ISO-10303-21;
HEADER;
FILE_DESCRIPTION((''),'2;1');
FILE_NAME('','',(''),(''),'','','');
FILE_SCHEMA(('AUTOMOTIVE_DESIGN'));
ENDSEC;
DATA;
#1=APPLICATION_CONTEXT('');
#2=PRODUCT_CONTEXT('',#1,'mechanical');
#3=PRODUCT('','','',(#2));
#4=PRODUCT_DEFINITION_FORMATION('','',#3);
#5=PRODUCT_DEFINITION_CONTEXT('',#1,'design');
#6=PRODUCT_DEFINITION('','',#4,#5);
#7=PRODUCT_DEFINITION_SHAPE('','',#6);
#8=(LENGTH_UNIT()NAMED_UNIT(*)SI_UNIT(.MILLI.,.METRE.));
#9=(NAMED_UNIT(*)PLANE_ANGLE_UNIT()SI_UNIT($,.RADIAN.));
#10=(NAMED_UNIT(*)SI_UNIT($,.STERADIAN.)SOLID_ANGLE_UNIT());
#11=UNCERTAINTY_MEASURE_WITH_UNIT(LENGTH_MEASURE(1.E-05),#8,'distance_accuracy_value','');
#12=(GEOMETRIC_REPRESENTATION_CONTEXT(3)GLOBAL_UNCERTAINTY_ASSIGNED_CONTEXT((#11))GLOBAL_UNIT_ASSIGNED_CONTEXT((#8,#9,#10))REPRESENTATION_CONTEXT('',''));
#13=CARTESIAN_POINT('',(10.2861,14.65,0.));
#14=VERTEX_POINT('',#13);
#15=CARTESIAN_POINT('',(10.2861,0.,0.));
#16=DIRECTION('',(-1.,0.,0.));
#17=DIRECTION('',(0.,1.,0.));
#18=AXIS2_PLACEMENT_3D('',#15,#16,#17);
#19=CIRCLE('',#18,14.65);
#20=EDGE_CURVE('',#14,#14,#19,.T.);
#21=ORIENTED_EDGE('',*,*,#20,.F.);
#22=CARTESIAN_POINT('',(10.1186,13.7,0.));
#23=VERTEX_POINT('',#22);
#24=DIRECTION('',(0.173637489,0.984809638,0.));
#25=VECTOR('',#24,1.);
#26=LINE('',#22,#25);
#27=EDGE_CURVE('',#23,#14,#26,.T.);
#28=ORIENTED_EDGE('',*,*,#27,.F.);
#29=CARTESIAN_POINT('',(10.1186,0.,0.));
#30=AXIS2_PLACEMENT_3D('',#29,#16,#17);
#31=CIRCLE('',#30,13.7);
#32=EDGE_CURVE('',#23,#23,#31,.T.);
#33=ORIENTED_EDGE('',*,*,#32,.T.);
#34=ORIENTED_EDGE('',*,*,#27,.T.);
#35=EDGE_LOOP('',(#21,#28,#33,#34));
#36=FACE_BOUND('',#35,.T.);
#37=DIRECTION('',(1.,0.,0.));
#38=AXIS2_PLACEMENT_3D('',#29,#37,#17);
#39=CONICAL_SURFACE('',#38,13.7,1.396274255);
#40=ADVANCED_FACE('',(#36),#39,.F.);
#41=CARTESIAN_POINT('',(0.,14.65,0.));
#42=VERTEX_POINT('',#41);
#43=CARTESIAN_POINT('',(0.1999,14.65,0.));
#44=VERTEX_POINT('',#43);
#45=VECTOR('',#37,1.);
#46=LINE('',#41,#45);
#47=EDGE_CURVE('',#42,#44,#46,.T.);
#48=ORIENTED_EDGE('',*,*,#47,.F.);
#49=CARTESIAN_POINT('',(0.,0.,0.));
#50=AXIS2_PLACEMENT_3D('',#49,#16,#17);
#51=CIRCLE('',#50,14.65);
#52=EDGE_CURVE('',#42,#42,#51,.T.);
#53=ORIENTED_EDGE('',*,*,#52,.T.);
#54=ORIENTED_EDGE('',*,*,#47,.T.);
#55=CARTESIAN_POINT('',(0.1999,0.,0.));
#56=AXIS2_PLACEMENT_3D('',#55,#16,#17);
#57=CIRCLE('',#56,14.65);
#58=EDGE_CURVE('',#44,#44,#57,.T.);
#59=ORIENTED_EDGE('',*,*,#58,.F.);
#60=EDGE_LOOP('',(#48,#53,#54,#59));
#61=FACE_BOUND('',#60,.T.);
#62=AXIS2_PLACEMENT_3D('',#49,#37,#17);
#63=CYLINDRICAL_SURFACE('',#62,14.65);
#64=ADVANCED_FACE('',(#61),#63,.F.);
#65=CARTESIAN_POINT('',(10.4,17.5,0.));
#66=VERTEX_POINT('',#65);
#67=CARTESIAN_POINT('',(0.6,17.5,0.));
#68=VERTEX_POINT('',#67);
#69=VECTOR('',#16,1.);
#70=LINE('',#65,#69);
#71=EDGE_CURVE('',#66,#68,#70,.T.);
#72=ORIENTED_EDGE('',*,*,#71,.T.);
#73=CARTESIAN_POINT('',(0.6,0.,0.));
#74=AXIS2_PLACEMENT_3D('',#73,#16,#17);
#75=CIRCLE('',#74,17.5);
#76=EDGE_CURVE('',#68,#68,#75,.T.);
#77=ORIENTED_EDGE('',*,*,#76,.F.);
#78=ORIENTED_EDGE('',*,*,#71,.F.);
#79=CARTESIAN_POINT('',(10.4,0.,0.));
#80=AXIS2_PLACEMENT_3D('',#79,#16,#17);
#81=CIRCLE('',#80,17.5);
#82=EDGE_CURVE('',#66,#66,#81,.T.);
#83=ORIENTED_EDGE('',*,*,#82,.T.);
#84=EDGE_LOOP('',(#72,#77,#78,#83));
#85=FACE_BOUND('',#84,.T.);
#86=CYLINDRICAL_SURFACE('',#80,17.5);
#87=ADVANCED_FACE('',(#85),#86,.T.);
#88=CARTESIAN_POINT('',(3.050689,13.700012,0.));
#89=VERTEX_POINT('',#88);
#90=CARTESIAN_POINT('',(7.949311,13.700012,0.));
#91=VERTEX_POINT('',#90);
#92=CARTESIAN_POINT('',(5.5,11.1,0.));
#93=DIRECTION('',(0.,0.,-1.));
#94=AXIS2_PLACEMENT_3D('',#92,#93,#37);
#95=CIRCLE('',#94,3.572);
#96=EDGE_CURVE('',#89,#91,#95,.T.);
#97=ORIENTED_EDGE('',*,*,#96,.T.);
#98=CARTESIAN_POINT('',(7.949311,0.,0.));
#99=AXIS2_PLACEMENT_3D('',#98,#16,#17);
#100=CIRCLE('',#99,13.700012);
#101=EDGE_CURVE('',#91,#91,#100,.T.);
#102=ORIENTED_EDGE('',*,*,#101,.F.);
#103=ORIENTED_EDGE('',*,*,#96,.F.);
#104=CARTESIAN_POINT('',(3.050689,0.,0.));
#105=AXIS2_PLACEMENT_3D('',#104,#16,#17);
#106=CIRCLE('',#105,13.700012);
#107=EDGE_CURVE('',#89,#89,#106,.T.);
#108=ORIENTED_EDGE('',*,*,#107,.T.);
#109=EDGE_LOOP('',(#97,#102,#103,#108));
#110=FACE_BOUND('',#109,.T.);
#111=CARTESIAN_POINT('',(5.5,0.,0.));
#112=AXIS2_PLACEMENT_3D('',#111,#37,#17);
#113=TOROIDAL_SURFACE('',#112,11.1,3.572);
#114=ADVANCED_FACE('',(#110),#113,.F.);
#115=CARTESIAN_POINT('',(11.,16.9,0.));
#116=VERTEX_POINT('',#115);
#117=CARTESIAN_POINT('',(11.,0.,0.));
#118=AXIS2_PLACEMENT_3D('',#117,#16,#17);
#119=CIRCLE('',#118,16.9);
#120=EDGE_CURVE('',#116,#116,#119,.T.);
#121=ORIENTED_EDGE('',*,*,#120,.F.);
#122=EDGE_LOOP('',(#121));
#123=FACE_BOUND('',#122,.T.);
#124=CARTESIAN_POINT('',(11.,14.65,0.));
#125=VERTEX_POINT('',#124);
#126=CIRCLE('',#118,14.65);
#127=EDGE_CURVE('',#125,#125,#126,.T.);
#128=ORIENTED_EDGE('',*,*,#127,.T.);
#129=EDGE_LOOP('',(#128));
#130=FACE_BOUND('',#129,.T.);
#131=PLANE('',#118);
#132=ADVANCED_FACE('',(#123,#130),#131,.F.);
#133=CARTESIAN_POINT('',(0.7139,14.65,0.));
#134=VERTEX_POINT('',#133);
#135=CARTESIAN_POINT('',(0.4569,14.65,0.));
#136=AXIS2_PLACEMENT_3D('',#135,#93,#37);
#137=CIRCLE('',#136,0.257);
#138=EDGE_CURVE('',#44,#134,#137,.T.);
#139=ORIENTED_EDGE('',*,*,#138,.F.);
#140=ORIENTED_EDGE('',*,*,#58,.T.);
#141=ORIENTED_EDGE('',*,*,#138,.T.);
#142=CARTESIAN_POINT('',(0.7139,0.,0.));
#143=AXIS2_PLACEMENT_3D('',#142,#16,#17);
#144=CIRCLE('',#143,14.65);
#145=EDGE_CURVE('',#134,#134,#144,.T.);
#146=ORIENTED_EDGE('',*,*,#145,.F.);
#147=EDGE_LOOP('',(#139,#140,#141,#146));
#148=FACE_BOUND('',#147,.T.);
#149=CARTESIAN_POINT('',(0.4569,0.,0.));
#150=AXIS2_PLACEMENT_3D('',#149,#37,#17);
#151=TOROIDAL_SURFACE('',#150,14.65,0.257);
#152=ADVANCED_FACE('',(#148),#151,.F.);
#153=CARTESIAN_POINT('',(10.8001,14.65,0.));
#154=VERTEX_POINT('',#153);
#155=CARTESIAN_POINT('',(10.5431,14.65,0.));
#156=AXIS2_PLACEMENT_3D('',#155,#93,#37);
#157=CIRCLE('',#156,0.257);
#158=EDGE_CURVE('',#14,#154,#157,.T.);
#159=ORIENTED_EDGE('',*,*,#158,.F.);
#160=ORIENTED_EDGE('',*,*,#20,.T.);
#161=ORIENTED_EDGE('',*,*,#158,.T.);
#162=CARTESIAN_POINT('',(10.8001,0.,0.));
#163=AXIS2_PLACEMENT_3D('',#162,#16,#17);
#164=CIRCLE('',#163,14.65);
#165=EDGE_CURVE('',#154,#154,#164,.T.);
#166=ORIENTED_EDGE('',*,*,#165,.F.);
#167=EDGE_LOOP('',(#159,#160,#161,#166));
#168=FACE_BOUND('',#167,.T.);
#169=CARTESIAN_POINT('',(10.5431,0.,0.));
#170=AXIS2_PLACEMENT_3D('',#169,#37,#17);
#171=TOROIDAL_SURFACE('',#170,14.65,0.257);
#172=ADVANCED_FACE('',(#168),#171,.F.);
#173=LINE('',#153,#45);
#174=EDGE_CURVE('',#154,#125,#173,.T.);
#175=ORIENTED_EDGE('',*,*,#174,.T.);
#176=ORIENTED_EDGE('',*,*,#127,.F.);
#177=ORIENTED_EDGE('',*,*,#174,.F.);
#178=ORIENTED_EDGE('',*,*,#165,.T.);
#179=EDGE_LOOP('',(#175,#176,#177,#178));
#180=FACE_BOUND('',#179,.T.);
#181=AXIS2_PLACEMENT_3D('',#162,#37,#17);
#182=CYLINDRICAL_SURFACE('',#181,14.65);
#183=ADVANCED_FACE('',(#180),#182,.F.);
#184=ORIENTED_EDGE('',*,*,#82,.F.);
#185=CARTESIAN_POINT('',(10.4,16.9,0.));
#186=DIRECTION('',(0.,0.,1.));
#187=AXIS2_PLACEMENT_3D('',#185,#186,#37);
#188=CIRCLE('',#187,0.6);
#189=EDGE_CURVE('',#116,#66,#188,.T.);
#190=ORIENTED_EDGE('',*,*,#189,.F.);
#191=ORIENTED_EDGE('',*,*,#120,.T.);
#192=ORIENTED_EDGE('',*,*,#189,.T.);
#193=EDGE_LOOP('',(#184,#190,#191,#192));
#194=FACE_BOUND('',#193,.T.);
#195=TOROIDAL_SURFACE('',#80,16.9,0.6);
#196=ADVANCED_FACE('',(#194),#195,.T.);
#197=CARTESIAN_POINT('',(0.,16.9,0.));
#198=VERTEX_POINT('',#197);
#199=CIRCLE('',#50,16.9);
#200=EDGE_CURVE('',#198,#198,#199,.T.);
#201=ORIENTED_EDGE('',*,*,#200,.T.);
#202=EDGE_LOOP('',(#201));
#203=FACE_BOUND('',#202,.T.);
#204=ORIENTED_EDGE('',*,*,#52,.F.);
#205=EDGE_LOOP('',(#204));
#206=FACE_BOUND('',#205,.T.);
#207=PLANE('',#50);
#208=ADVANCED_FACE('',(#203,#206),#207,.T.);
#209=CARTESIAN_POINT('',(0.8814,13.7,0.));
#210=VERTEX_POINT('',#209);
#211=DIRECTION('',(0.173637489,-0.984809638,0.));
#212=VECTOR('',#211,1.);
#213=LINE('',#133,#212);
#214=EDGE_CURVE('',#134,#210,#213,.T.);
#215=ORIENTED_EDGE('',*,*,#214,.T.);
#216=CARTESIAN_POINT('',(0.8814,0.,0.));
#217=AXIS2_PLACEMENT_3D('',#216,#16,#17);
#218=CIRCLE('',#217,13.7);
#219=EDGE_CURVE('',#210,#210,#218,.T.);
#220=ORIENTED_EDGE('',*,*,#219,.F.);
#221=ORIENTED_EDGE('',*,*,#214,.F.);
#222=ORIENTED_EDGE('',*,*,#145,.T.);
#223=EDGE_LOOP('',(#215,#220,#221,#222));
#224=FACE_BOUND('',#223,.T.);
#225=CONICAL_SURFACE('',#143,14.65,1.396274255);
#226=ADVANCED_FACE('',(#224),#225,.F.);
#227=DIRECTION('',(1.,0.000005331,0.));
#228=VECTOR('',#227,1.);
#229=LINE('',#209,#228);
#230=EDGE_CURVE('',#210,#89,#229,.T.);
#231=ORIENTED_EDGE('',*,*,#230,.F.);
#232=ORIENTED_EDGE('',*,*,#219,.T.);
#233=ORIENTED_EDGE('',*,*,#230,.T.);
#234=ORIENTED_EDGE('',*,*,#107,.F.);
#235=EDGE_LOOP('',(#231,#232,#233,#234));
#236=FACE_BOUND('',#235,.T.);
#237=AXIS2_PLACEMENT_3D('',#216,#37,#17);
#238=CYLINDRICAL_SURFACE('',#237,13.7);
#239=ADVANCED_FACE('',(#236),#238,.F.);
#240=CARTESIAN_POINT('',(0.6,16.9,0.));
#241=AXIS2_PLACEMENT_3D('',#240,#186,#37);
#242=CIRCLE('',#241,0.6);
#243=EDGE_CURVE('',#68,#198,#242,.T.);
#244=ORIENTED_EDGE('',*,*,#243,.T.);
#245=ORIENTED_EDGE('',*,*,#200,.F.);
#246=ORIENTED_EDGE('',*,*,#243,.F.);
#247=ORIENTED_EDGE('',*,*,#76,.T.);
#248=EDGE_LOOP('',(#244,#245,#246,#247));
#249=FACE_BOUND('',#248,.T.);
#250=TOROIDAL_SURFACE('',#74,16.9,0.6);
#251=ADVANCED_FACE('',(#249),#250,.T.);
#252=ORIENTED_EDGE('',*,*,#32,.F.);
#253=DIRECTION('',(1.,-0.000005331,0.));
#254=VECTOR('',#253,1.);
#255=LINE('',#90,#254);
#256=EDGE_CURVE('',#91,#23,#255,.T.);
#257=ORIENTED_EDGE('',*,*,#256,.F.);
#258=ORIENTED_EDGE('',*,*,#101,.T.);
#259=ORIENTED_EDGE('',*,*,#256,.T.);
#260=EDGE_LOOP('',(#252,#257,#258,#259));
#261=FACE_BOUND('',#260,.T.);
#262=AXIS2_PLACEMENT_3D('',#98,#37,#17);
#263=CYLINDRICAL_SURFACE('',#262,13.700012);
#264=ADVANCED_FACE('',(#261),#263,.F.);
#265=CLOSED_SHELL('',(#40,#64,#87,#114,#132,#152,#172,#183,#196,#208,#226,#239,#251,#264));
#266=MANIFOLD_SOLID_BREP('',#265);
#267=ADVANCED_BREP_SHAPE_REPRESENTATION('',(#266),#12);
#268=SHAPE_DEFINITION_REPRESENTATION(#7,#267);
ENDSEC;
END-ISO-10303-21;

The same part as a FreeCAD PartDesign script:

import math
import FreeCAD as App
import Part
import Sketcher
Q = App.Units.Quantity

doc = App.newDocument("Part")
body = doc.addObject("PartDesign::Body", "Body")

sketch1 = body.newObject("Sketcher::SketchObject", "Sketch")
sketch1.AttachmentSupport = (doc.getObject("XY_Plane"), [""])
sketch1.MapMode = "FlatFace"
sketch1.addGeometry([
    Part.ArcOfCircle(Part.Circle(App.Vector(0.6, 16.9, 0), App.Vector(0, 0, 1), 0.6), math.radians(90), math.radians(180)),
    Part.LineSegment(App.Vector(0, 16.9, 0), App.Vector(0, 14.65, 0)),
    Part.LineSegment(App.Vector(0, 14.65, 0), App.Vector(0.1999, 14.65, 0)),
    Part.ArcOfCircle(Part.Circle(App.Vector(0.4569, 14.65, 0), App.Vector(0, 0, 1), 0.257), math.radians(0), math.radians(180)),
    Part.LineSegment(App.Vector(0.7139, 14.65, 0), App.Vector(0.8814, 13.7, 0)),
    Part.LineSegment(App.Vector(0.8814, 13.7, 0), App.Vector(3.0507, 13.7, 0)),
    Part.ArcOfCircle(Part.Circle(App.Vector(5.5, 11.1, 0), App.Vector(0, 0, 1), 3.571984), math.radians(46.709526), math.radians(133.290474)),
    Part.LineSegment(App.Vector(7.9493, 13.7, 0), App.Vector(10.1186, 13.7, 0)),
    Part.LineSegment(App.Vector(10.1186, 13.7, 0), App.Vector(10.2861, 14.65, 0)),
    Part.ArcOfCircle(Part.Circle(App.Vector(10.5431, 14.65, 0), App.Vector(0, 0, 1), 0.257), math.radians(0), math.radians(180)),
    Part.LineSegment(App.Vector(10.8001, 14.65, 0), App.Vector(11, 14.65, 0)),
    Part.LineSegment(App.Vector(11, 14.65, 0), App.Vector(11, 16.9, 0)),
    Part.ArcOfCircle(Part.Circle(App.Vector(10.4, 16.9, 0), App.Vector(0, 0, 1), 0.6), math.radians(0), math.radians(90)),
    Part.LineSegment(App.Vector(10.4, 17.5, 0), App.Vector(0.6, 17.5, 0)),
], False)
sketch1.addConstraint([
    Sketcher.Constraint("Tangent", 0, 2, 1, 1),
    Sketcher.Constraint("Coincident", 1, 2, 2, 1),
    Sketcher.Constraint("Coincident", 2, 2, 3, 2),
    Sketcher.Constraint("Coincident", 3, 1, 4, 1),
    Sketcher.Constraint("Coincident", 4, 2, 5, 1),
    Sketcher.Constraint("Coincident", 5, 2, 6, 2),
    Sketcher.Constraint("Coincident", 6, 1, 7, 1),
    Sketcher.Constraint("Coincident", 7, 2, 8, 1),
    Sketcher.Constraint("Coincident", 8, 2, 9, 2),
    Sketcher.Constraint("Coincident", 9, 1, 10, 1),
    Sketcher.Constraint("Coincident", 10, 2, 11, 1),
    Sketcher.Constraint("Tangent", 11, 2, 12, 1),
    Sketcher.Constraint("Tangent", 12, 2, 13, 1),
    Sketcher.Constraint("Tangent", 13, 2, 0, 1),
    Sketcher.Constraint("Vertical", 1),
    Sketcher.Constraint("Horizontal", 2),
    Sketcher.Constraint("Horizontal", 5),
    Sketcher.Constraint("Horizontal", 7),
    Sketcher.Constraint("Horizontal", 10),
    Sketcher.Constraint("Vertical", 11),
    Sketcher.Constraint("Horizontal", 13),
    Sketcher.Constraint("Equal", 3, 9),
    Sketcher.Constraint("Equal", 0, 12),
    Sketcher.Constraint("PointOnObject", 0, 2, -2),
    Sketcher.Constraint("Horizontal", 3, 3, 9, 3),
    Sketcher.Constraint("Horizontal", 9, 3, 1, 2),
    Sketcher.Constraint("Horizontal", 2, 2, 3, 1),
    Sketcher.Constraint("Horizontal", 5, 2, 6, 1),
    Sketcher.Constraint("Horizontal", 3, 1, 8, 2),
    Sketcher.Constraint("Horizontal", 8, 2, 9, 1),
    Sketcher.Constraint("Equal", 5, 7),
    Sketcher.Constraint("Equal", 2, 10),
    Sketcher.Constraint("Equal", 4, 8),
    Sketcher.Constraint("Radius", 0, Q("0.6 mm")),
    Sketcher.Constraint("Angle", 4, Q("-80.0006 deg")),
    Sketcher.Constraint("DistanceX", 2, 1, 2, 2, Q("0.2 mm")),
    Sketcher.Constraint("DistanceX", 13, 2, 13, 1, Q("9.8 mm")),
    Sketcher.Constraint("Radius", 3, Q("0.257 mm")),
    Sketcher.Constraint("Radius", 6, Q("3.572 mm")),
    Sketcher.Constraint("DistanceY", 1, 2, 1, 1, Q("2.25 mm")),
    Sketcher.Constraint("DistanceY", -1, 1, 0, 3, Q("16.9 mm")),
    Sketcher.Constraint("DistanceY", -1, 1, 6, 3, Q("11.1 mm")),
    Sketcher.Constraint("DistanceY", -1, 1, 4, 2, Q("13.7 mm")),
])
revolution = body.newObject("PartDesign::Revolution", "Revolution")
revolution.Profile = sketch1
revolution.ReferenceAxis = (sketch1, ["H_Axis"])
revolution.Angle = 360

doc.recompute()
